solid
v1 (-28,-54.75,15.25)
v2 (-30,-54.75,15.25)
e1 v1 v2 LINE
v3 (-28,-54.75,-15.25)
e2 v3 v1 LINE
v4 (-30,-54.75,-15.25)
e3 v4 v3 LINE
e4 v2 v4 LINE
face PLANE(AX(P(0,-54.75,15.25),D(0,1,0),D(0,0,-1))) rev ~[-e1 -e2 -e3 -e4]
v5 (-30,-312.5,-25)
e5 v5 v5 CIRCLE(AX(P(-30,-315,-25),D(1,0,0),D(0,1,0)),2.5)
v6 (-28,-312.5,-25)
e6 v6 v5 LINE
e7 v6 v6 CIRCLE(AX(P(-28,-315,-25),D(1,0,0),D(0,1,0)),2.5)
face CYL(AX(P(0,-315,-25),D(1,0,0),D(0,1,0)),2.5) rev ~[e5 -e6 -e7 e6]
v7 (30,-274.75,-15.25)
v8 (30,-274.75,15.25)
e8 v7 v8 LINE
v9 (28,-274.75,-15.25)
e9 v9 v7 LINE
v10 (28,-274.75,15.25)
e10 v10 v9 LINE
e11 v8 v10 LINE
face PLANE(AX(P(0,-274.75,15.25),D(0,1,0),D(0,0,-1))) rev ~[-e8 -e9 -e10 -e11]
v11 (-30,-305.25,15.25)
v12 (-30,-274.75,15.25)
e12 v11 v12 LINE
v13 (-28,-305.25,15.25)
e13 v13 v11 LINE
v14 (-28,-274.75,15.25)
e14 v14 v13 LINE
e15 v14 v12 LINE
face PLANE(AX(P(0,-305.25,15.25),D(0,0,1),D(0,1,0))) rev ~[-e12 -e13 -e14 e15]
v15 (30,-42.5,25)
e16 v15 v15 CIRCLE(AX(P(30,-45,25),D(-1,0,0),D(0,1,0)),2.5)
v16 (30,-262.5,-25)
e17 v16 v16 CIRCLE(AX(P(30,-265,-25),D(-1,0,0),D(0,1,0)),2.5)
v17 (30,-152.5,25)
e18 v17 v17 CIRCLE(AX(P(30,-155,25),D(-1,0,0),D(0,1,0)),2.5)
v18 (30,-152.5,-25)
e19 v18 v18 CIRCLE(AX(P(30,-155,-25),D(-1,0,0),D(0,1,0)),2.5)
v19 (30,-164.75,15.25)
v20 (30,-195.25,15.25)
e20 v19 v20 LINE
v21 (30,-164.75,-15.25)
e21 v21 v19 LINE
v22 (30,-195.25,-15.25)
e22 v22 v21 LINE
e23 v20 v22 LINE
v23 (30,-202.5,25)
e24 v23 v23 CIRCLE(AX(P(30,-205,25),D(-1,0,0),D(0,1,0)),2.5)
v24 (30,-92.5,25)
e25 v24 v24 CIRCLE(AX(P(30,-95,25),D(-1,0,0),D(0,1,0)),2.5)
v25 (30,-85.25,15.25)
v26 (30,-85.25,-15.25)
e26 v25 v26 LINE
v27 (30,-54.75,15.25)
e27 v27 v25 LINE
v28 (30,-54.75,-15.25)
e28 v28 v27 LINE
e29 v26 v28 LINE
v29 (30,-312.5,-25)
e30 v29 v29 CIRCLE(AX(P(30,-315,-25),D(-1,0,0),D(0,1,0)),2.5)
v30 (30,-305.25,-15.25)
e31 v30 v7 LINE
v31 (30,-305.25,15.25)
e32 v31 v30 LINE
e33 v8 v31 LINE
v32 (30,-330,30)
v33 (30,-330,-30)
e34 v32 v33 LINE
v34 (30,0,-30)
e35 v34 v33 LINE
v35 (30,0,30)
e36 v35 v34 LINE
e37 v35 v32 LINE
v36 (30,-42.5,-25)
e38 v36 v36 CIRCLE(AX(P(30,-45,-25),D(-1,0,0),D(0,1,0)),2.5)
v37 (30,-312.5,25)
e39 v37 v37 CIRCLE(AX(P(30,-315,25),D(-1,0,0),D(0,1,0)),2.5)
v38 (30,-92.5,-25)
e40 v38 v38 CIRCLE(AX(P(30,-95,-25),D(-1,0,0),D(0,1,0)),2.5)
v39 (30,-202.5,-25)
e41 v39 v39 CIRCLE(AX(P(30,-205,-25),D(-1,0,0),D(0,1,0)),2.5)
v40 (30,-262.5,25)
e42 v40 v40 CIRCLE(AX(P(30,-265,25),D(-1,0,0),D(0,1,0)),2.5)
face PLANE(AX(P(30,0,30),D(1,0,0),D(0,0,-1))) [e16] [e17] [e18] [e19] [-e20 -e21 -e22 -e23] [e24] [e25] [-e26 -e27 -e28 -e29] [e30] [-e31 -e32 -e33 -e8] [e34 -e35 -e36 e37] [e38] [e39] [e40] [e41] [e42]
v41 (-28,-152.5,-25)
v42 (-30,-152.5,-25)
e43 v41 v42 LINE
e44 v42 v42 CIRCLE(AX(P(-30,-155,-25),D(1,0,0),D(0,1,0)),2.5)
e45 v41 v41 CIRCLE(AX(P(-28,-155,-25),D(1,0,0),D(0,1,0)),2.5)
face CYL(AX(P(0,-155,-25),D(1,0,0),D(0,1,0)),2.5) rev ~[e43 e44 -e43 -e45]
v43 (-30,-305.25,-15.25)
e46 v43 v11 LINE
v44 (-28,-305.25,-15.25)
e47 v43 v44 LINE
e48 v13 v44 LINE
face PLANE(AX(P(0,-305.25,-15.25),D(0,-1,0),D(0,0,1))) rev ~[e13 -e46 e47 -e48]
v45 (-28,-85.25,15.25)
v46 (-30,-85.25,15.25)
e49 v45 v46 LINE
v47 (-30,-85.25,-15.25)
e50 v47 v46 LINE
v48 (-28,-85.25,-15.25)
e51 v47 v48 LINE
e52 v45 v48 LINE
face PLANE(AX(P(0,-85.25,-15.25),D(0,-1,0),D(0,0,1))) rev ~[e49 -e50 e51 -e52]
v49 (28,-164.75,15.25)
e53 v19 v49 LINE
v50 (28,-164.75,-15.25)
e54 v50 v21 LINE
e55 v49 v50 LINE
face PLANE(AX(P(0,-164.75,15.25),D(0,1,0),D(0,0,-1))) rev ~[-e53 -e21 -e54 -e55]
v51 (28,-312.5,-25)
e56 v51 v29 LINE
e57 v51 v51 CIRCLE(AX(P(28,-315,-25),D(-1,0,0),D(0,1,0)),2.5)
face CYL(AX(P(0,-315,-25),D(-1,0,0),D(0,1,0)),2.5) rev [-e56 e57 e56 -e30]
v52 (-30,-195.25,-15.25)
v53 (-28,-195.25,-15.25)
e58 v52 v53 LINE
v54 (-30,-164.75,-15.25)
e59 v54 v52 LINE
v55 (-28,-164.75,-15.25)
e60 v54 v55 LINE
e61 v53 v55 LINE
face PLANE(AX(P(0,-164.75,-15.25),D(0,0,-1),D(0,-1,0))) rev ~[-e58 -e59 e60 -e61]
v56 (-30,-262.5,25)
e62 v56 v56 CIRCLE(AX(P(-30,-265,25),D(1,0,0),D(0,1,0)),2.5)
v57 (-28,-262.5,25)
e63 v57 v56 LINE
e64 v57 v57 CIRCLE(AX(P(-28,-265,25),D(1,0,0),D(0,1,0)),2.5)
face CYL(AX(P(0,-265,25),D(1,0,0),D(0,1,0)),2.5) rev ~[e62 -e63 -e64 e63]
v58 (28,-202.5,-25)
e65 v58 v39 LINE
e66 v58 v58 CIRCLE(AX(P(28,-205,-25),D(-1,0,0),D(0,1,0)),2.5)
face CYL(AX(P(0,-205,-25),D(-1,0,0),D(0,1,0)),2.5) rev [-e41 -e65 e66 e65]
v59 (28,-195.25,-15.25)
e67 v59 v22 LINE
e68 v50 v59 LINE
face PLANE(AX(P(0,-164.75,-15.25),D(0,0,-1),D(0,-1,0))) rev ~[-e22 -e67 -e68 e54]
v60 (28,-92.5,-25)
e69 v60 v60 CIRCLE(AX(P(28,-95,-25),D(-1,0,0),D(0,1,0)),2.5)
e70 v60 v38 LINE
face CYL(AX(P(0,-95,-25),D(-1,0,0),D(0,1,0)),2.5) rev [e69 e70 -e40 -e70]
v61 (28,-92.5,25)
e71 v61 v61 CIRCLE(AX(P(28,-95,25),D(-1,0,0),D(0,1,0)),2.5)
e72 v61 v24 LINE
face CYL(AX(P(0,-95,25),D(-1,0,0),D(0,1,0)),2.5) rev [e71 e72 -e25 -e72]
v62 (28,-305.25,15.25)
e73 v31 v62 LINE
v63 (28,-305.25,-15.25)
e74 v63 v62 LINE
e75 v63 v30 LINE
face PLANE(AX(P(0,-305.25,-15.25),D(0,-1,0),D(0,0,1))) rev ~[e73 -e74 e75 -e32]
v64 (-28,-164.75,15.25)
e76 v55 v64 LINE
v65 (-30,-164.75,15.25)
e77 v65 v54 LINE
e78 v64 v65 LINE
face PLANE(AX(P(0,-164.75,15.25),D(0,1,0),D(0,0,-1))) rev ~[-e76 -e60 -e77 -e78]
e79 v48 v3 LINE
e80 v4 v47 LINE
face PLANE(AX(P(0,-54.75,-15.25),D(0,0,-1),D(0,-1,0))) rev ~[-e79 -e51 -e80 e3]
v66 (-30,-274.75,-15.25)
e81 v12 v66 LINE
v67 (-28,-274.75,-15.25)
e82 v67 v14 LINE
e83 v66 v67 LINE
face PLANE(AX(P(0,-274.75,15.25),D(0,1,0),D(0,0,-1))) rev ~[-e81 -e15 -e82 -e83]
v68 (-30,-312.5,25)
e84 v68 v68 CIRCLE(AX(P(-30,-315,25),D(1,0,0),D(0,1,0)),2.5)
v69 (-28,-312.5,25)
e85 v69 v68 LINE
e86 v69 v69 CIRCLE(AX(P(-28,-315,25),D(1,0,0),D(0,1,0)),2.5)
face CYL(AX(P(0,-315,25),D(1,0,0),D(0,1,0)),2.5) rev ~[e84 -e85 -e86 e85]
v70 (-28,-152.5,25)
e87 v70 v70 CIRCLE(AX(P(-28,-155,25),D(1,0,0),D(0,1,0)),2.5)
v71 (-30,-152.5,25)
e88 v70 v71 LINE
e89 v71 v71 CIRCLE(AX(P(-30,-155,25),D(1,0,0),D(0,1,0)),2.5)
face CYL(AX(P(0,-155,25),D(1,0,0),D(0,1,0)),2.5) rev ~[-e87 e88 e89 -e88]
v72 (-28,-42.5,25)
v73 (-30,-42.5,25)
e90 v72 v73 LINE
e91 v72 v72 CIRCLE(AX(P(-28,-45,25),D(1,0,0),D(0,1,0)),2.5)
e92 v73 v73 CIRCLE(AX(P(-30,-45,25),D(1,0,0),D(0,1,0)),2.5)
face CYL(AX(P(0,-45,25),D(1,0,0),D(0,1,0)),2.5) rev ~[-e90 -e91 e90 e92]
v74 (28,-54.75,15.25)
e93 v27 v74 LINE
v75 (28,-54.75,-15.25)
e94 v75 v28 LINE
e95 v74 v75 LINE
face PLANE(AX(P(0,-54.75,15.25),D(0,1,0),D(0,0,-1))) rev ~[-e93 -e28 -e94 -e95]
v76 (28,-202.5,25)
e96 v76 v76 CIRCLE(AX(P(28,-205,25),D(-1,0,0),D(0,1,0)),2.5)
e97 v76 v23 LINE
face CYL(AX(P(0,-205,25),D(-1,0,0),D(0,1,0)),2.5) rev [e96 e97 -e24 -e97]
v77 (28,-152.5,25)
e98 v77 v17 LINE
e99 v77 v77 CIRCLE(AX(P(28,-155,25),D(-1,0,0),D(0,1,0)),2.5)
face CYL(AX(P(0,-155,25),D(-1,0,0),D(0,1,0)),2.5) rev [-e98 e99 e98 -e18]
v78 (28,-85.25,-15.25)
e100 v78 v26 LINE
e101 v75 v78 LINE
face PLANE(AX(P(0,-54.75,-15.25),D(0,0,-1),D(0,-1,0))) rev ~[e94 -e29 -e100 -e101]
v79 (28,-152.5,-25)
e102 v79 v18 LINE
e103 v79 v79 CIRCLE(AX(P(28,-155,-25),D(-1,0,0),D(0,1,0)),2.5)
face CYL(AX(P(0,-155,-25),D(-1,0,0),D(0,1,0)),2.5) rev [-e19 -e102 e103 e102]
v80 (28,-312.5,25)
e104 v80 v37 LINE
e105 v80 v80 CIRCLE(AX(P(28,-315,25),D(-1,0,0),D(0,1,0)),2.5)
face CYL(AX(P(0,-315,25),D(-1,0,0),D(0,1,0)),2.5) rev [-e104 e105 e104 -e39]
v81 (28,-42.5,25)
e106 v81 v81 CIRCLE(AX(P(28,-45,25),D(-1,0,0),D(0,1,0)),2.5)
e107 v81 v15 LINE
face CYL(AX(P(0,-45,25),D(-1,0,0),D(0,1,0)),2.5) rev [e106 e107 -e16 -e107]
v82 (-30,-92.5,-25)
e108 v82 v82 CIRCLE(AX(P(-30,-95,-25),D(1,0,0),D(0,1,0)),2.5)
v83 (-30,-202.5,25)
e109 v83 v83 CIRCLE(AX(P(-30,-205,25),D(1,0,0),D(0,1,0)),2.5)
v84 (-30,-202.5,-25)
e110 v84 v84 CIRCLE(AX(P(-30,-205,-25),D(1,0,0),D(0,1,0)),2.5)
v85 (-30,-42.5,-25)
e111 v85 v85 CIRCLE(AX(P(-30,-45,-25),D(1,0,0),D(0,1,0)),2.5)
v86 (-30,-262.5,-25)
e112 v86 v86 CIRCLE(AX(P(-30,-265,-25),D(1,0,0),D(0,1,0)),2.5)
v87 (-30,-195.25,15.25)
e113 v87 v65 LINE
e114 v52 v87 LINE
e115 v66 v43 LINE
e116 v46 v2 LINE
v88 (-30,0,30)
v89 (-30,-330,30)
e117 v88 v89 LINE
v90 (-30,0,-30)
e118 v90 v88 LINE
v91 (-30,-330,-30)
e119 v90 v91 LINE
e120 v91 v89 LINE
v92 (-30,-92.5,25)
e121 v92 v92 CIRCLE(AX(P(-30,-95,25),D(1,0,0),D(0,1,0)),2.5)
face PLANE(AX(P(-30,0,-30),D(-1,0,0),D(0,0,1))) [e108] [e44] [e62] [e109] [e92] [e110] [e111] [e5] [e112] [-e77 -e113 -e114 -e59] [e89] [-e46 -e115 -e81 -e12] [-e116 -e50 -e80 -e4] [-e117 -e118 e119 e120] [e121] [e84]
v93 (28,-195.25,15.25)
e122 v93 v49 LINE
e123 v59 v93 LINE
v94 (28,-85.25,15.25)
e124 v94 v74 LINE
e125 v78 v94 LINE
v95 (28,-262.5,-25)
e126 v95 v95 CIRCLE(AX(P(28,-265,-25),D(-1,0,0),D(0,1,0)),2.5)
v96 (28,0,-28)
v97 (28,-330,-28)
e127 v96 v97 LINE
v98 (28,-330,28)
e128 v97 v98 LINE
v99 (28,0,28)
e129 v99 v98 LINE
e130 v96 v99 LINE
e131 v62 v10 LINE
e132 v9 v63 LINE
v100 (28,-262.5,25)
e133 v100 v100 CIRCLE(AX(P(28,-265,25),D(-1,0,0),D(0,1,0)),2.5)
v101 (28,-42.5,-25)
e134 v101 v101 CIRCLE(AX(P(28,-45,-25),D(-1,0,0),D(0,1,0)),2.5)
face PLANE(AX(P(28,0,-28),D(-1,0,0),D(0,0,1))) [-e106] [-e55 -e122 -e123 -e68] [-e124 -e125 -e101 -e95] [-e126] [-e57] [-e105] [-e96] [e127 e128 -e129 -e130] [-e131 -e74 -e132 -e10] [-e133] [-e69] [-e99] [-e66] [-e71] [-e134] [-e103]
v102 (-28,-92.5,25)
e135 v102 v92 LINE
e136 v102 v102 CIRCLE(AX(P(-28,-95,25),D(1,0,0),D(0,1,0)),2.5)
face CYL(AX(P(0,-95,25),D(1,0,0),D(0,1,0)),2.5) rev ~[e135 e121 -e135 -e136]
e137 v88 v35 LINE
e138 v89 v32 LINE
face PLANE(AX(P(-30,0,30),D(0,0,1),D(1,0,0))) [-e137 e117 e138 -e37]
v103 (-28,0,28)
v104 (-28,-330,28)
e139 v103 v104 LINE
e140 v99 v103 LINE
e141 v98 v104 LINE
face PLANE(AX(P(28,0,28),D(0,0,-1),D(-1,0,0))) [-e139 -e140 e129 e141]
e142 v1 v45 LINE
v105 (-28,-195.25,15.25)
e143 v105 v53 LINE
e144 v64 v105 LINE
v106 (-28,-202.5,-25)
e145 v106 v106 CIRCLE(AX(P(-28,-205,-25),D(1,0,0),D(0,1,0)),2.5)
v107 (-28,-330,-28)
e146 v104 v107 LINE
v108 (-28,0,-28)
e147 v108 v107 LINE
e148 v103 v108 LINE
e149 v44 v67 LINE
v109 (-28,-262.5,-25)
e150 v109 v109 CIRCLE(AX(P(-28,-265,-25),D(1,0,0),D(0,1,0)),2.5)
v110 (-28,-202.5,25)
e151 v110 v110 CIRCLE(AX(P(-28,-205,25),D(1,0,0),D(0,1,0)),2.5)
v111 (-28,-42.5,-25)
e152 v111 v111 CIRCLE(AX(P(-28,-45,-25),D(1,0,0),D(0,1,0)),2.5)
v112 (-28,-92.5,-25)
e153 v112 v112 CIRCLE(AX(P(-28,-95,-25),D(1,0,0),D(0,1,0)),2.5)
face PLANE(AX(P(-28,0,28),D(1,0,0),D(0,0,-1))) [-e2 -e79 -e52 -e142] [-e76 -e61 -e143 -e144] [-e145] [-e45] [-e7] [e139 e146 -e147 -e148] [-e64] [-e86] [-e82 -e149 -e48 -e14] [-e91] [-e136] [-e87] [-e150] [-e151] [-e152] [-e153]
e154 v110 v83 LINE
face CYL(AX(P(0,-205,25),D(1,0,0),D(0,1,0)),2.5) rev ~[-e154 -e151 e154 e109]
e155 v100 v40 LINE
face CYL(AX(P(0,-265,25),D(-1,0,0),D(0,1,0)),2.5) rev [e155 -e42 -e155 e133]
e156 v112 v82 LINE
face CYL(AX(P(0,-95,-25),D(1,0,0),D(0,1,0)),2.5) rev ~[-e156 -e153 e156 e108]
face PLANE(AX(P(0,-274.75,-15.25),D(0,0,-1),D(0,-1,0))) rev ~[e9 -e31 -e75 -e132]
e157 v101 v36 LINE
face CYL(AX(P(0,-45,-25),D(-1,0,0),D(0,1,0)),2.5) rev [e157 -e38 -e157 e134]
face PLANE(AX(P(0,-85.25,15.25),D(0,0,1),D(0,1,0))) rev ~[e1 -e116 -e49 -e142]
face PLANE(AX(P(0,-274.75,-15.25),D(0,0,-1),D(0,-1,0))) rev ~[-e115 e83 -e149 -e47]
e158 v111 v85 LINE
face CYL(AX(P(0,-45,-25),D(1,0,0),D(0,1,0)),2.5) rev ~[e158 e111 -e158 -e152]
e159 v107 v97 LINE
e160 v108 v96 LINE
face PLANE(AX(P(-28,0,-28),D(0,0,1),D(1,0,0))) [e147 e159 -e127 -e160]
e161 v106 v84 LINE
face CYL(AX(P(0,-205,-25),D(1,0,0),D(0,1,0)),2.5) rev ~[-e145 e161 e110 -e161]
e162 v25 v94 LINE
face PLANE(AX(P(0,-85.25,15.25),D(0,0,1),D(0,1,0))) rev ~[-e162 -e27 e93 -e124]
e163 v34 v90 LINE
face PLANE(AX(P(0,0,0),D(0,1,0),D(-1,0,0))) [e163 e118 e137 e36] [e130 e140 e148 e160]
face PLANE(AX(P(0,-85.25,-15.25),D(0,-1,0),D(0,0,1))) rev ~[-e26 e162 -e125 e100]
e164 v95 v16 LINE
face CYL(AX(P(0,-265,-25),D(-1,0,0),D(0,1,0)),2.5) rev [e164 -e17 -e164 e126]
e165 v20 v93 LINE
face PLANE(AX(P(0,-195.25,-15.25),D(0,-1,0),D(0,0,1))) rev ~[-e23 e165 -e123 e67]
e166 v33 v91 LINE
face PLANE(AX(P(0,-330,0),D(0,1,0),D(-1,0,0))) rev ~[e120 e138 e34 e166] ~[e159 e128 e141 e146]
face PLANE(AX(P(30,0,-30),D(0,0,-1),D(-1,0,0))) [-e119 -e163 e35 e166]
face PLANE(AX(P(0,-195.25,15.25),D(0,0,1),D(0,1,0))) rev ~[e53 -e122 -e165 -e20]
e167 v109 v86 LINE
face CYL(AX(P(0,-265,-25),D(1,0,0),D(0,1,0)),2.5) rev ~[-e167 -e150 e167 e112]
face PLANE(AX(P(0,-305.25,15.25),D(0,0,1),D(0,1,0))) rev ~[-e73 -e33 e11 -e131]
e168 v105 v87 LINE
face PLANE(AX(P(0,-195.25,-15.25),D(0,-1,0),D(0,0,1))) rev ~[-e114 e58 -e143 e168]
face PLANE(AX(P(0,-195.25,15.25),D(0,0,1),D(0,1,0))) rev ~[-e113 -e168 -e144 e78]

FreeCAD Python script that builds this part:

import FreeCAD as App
import Part
import Sketcher

V = App.Vector
Q = App.Units.Quantity


def add_polygon(sketch, points):
    """Adds a closed chain of lines whose ends are joined by coincident constraints."""
    first, n = sketch.GeometryCount, len(points)
    for a, b in zip(points, points[1:] + points[:1]):
        sketch.addGeometry(Part.LineSegment(App.Vector(*a, 0), App.Vector(*b, 0)), False)
    for i in range(n):
        sketch.addConstraint(Sketcher.Constraint("Coincident", first + i, 2, first + (i + 1) % n, 1))

doc = App.newDocument("Part")
body = doc.addObject("PartDesign::Body", "Body")

# Sketch on XZ plane
sketch1 = body.newObject("Sketcher::SketchObject", "Sketch")
sketch1.AttachmentSupport = (doc.getObject("XZ_Plane"), [""])
sketch1.MapMode = "FlatFace"
add_polygon(sketch1, [(-30, -30), (-30, 30), (30, 30), (30, -30)])  # lines 0-3
add_polygon(sketch1, [(28, -28), (28, 28), (-28, 28), (-28, -28)])  # lines 4-7
sketch1.addConstraint(Sketcher.Constraint("Vertical", 0))
sketch1.addConstraint(Sketcher.Constraint("Horizontal", 1))
sketch1.addConstraint(Sketcher.Constraint("Vertical", 2))
sketch1.addConstraint(Sketcher.Constraint("Horizontal", 3))
sketch1.addConstraint(Sketcher.Constraint("Vertical", 4))
sketch1.addConstraint(Sketcher.Constraint("Horizontal", 5))
sketch1.addConstraint(Sketcher.Constraint("Vertical", 6))
sketch1.addConstraint(Sketcher.Constraint("Horizontal", 7))
sketch1.addConstraint(Sketcher.Constraint("Symmetric", 0, 2, 2, 2, -1, 1))
sketch1.addConstraint(Sketcher.Constraint("Symmetric", 4, 2, 6, 2, -1, 1))
sketch1.addConstraint(Sketcher.Constraint("Equal", 3, 0))
sketch1.addConstraint(Sketcher.Constraint("Equal", 7, 4))
sketch1.addConstraint(Sketcher.Constraint("DistanceX", 1, 1, 1, 2, Q("60 mm")))
sketch1.addConstraint(Sketcher.Constraint("DistanceX", 4, 2, 1, 2, Q("2 mm")))
pad1 = body.newObject("PartDesign::Pad", "Pad")
pad1.Profile = sketch1
pad1.Length = 330

# Sketch on YZ plane
sketch2 = body.newObject("Sketcher::SketchObject", "Sketch001")
sketch2.AttachmentSupport = (doc.getObject("YZ_Plane"), [""])
sketch2.MapMode = "FlatFace"
add_polygon(sketch2, [(-85.2, 15.2), (-85.2, -15.2), (-54.8, -15.2), (-54.8, 15.2)])  # lines 0-3
sketch2.addGeometry(Part.Circle(V(-95, 25, 0), V(0, 0, 1), 2.5), False)  # 4
sketch2.addGeometry(Part.Circle(V(-45, 25, 0), V(0, 0, 1), 2.5), False)  # 5
sketch2.addGeometry(Part.Circle(V(-45, -25, 0), V(0, 0, 1), 2.5), False)  # 6
sketch2.addGeometry(Part.Circle(V(-95, -25, 0), V(0, 0, 1), 2.5), False)  # 7
sketch2.addConstraint(Sketcher.Constraint("Vertical", 0))
sketch2.addConstraint(Sketcher.Constraint("Horizontal", 1))
sketch2.addConstraint(Sketcher.Constraint("Vertical", 2))
sketch2.addConstraint(Sketcher.Constraint("Horizontal", 3))
sketch2.addConstraint(Sketcher.Constraint("Equal", 4, 5))
sketch2.addConstraint(Sketcher.Constraint("Equal", 5, 6))
sketch2.addConstraint(Sketcher.Constraint("Equal", 6, 7))
sketch2.addConstraint(Sketcher.Constraint("Symmetric", 5, 3, 6, 3, -1))
sketch2.addConstraint(Sketcher.Constraint("Symmetric", 4, 3, 7, 3, -1))
sketch2.addConstraint(Sketcher.Constraint("Horizontal", 4, 3, 5, 3))
sketch2.addConstraint(Sketcher.Constraint("Equal", 3, 0))
sketch2.addConstraint(Sketcher.Constraint("Diameter", 4, Q("5 mm")))
sketch2.addConstraint(Sketcher.Constraint("DistanceX", 1, 1, 1, 2, Q("30.5 mm")))
sketch2.addConstraint(Sketcher.Constraint("DistanceX", 4, 3, 5, 3, Q("50 mm")))
sketch2.addConstraint(Sketcher.Constraint("DistanceY", 6, 3, 5, 3, Q("50 mm")))
sketch2.addConstraint(Sketcher.Constraint("DistanceX", 4, 3, -1, 1, Q("95 mm")))
sketch2.addConstraint(Sketcher.Constraint("DistanceX", 0, 2, -1, 1, Q("85.25 mm")))
sketch2.addConstraint(Sketcher.Constraint("DistanceY", 0, 2, -1, 1, Q("15.25 mm")))
pocket1 = body.newObject("PartDesign::Pocket", "Pocket")
pocket1.Profile = sketch2
pocket1.Type = "ThroughAll"
pocket1.Midplane = True
doc.recompute()

linearpattern = body.newObject("PartDesign::LinearPattern", "LinearPattern")
linearpattern.Originals = [pocket1]
linearpattern.Direction = (doc.getObject("Y_Axis"), [""])
linearpattern.Mode = "offset"
linearpattern.Offset = 110
linearpattern.Occurrences = 3
linearpattern.Reversed = True
body.Tip = linearpattern

doc.recompute()
